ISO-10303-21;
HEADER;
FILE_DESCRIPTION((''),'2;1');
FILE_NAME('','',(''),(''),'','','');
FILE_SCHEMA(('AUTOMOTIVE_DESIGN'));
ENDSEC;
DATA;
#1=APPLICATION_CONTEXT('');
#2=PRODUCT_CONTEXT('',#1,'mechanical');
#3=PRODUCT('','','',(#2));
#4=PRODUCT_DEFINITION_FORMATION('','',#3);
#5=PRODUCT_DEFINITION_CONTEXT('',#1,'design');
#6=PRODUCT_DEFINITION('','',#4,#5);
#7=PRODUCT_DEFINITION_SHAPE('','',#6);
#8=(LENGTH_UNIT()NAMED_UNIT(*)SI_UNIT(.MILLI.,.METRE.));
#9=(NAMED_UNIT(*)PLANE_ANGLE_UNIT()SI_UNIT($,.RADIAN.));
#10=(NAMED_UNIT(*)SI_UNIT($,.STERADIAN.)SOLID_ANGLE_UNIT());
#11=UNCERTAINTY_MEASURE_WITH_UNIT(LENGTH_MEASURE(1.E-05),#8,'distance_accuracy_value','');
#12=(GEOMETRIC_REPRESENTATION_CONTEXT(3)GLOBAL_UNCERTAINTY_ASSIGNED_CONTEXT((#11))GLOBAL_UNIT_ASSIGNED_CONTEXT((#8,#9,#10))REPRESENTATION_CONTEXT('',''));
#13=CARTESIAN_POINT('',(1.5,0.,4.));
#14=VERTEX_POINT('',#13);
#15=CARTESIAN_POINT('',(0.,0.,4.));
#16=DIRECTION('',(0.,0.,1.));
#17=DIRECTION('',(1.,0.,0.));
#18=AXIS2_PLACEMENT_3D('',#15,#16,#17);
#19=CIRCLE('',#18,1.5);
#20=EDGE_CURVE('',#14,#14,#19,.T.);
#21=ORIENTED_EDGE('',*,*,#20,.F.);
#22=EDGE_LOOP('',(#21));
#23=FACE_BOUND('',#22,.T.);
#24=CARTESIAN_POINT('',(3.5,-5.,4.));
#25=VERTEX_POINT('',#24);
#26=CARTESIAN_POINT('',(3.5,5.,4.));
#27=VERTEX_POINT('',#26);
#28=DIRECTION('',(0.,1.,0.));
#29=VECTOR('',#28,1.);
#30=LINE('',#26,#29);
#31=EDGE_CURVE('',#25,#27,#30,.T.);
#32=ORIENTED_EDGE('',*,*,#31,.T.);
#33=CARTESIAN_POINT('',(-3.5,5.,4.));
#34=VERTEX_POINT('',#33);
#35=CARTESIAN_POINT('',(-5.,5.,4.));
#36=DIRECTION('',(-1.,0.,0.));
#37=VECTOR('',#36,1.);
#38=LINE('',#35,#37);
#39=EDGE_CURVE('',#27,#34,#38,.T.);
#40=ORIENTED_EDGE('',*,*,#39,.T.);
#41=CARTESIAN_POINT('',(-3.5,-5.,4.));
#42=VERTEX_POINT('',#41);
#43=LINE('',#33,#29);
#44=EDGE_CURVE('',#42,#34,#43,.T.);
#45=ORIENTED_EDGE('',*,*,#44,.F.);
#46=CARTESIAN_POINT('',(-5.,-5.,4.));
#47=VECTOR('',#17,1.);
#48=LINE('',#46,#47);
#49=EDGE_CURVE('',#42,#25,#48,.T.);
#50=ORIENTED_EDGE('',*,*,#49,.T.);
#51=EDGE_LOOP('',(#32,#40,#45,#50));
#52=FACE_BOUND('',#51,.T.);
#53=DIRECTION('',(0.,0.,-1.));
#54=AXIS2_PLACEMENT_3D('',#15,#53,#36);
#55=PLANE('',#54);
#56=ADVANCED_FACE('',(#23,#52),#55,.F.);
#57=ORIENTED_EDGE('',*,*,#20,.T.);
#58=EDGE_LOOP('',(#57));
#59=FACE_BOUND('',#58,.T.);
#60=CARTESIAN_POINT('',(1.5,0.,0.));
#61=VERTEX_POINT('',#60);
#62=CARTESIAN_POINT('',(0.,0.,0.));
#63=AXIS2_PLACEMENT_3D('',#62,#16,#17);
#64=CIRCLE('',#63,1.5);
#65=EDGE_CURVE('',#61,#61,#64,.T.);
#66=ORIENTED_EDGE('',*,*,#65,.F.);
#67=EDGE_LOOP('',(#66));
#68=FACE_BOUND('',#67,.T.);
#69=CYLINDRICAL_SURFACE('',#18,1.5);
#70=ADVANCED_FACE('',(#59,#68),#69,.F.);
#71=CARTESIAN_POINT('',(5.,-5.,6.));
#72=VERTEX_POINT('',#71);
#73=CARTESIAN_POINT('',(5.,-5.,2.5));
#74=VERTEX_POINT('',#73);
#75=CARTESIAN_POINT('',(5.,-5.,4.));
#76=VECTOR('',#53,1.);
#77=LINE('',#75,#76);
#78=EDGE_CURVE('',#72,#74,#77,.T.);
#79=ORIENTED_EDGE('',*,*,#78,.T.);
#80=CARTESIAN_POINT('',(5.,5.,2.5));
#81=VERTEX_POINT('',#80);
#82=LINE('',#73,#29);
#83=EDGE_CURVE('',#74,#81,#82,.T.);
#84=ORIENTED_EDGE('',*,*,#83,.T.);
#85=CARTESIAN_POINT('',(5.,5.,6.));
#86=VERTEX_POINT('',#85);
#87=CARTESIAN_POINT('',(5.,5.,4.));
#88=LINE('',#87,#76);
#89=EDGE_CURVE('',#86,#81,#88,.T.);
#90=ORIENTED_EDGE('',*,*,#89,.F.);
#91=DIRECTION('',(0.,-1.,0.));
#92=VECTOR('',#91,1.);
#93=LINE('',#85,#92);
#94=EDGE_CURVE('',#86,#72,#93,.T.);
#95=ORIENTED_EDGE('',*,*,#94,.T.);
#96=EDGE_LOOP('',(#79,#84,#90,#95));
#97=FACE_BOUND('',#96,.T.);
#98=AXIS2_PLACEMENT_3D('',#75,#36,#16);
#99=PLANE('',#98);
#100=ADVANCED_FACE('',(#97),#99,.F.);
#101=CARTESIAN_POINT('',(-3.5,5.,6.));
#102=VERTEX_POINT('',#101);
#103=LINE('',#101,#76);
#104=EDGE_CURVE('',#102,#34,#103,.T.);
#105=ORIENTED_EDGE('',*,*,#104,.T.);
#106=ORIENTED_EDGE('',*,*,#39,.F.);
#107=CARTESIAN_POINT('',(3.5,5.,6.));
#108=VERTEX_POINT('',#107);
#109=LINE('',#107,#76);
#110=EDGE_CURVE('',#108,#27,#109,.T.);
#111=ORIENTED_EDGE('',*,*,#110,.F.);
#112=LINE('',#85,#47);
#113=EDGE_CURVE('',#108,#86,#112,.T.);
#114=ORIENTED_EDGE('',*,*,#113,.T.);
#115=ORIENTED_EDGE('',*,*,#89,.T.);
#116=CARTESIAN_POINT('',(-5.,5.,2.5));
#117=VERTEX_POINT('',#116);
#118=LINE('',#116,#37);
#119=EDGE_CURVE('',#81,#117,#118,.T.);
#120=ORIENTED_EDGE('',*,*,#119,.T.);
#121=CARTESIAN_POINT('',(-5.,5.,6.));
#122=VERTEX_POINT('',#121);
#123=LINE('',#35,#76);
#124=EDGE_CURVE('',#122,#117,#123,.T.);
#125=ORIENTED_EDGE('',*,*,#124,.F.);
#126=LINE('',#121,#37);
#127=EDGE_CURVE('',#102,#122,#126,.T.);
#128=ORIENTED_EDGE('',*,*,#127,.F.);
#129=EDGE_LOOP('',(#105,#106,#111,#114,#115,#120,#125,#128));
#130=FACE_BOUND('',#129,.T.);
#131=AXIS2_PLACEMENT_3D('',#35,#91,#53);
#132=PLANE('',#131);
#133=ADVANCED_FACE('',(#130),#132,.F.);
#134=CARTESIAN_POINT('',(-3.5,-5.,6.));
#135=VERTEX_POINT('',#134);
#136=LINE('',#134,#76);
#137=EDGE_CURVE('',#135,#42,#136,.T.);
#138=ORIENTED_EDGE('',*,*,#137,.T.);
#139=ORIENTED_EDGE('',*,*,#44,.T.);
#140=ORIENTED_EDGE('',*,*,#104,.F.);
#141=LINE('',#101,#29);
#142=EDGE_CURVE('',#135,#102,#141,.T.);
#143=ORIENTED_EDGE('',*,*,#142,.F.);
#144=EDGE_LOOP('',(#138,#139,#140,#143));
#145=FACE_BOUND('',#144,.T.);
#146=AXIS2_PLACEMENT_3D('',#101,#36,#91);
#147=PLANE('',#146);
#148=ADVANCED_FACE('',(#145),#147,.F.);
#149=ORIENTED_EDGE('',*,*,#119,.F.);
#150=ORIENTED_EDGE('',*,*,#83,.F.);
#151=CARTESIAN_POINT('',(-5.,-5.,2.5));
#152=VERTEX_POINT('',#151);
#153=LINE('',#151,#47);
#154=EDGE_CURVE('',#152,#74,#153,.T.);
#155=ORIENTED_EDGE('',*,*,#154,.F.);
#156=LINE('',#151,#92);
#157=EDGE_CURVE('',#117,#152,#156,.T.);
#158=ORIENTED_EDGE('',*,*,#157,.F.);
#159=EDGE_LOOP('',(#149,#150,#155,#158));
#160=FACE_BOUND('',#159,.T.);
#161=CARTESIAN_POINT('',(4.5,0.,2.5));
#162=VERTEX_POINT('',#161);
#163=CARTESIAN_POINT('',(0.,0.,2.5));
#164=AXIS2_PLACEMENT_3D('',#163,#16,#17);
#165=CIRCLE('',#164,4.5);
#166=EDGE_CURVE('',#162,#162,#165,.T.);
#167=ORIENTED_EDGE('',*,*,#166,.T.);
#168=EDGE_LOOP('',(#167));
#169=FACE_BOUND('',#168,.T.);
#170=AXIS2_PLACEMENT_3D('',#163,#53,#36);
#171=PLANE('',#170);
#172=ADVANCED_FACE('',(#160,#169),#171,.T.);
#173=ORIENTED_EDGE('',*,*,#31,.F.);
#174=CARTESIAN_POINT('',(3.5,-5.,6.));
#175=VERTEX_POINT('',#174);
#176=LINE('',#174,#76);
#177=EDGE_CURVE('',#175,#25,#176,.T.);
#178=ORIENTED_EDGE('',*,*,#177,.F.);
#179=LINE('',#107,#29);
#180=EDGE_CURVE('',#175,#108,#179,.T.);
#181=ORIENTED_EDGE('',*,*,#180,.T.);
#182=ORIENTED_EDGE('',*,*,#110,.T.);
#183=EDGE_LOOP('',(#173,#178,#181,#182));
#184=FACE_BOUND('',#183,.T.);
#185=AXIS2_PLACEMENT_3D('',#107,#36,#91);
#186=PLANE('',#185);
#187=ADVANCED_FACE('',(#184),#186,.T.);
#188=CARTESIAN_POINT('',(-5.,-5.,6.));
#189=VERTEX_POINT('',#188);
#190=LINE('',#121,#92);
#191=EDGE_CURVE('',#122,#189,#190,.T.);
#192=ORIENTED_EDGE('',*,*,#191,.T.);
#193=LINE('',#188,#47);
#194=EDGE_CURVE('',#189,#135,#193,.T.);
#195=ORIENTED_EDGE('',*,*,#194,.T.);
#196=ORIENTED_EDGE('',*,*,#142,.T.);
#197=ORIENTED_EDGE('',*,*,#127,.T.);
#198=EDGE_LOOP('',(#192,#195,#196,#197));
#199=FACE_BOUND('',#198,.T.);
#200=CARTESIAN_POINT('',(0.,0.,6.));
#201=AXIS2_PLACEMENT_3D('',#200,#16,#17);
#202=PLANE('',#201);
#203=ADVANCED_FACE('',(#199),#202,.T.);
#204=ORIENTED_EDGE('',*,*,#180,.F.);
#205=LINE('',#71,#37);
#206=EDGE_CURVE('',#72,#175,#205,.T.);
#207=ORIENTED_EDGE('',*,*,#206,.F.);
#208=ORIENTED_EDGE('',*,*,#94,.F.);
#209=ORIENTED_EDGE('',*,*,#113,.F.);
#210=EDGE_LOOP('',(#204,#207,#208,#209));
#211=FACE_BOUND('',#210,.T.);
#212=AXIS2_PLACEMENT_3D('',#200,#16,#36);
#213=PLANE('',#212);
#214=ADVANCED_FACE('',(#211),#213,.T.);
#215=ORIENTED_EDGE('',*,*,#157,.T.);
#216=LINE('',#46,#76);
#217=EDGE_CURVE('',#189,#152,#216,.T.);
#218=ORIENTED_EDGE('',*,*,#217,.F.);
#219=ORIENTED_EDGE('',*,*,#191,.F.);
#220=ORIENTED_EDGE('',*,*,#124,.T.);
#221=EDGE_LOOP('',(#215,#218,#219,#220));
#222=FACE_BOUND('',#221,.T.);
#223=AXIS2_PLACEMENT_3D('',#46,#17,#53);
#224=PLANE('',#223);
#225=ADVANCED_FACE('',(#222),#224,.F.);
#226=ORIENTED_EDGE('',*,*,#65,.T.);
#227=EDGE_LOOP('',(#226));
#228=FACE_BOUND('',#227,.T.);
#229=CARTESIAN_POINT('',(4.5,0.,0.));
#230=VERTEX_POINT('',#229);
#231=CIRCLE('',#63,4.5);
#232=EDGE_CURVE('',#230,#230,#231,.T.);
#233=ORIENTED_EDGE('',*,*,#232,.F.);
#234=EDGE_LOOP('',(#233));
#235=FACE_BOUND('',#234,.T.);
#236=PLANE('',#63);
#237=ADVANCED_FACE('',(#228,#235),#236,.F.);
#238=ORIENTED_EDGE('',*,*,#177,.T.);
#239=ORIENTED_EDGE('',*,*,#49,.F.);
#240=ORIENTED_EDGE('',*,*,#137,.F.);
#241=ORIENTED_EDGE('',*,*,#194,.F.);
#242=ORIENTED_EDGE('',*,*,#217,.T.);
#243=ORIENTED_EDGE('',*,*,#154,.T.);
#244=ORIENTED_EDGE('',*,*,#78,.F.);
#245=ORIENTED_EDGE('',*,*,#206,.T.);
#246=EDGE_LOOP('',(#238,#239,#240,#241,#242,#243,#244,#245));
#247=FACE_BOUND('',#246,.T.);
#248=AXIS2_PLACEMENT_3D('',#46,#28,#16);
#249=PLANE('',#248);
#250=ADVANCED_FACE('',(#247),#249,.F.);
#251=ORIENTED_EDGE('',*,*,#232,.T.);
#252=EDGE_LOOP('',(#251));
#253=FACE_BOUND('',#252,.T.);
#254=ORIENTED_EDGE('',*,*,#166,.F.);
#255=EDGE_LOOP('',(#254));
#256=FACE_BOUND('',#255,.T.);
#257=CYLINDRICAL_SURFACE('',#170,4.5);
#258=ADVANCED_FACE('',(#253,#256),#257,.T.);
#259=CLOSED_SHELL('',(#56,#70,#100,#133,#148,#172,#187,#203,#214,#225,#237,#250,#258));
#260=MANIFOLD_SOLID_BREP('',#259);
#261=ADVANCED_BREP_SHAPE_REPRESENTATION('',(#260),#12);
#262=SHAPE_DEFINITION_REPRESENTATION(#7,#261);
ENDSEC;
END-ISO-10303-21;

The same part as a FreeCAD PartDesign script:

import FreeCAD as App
import Part
import Sketcher
from FreeCAD import Vector


def add_polygon(sketch, points):
    """Adds a closed chain of lines whose ends are joined by coincident constraints."""
    first, n = sketch.GeometryCount, len(points)
    for a, b in zip(points, points[1:] + points[:1]):
        sketch.addGeometry(Part.LineSegment(App.Vector(*a, 0), App.Vector(*b, 0)), False)
    for i in range(n):
        sketch.addConstraint(Sketcher.Constraint("Coincident", first + i, 2, first + (i + 1) % n, 1))

doc = App.newDocument("Part")
params = doc.addObject("Spreadsheet::Sheet", "Params")
for row, (alias, value) in enumerate([
    ("sketch1_diameter", "9 mm"),
    ("pad1_length", "2.5 mm"),
    ("sketch2_width", "10 mm"),
    ("pad2_length", "1.5 mm"),
    ("sketch3_height", "10 mm"),
    ("sketch3_width", "1.5 mm"),
    ("pad3_length", "2 mm"),
    ("sketch4_diameter", "3 mm"),
    ("hole_diameter", "3 mm"),
], start=1):
    params.set(f"A{row}", alias)
    params.set(f"B{row}", "=" + value)
    params.setAlias(f"B{row}", alias)

body = doc.addObject("PartDesign::Body", "Body")

sketch1 = doc.addObject("Sketcher::SketchObject", "Sketch")
body.addObject(sketch1)
sketch1.AttachmentSupport = (doc.XY_Plane, [""])
sketch1.MapMode = "FlatFace"
sketch1.addGeometry(Part.Circle(Vector(0, 0, 0), Vector(0, 0, 1), 4.5), False)
sketch1.addConstraint(Sketcher.Constraint("Coincident", 0, 3, -1, 1))
sketch1.addConstraint(Sketcher.Constraint("Diameter", 0, 9.0))
sketch1.setExpression("Constraints[1]", "Params.sketch1_diameter")
pad1 = doc.addObject("PartDesign::Pad", "Pad")
body.addObject(pad1)
pad1.Profile = sketch1
pad1.setExpression("Length", "Params.pad1_length")

sketch2 = doc.addObject("Sketcher::SketchObject", "Sketch001")
body.addObject(sketch2)
sketch2.AttachmentSupport = (doc.XY_Plane, [""])
sketch2.MapMode = "FlatFace"
sketch2.AttachmentOffset = App.Placement(Vector(0, 0, 2.5), App.Rotation())
add_polygon(sketch2, [(-5, 5), (-5, -5), (5, -5), (5, 5)])
sketch2.addConstraint(Sketcher.Constraint("Vertical", 0))
sketch2.addConstraint(Sketcher.Constraint("Horizontal", 1))
sketch2.addConstraint(Sketcher.Constraint("Vertical", 2))
sketch2.addConstraint(Sketcher.Constraint("Horizontal", 3))
sketch2.addConstraint(Sketcher.Constraint("Symmetric", 0, 2, 2, 2, -1, 1))
sketch2.addConstraint(Sketcher.Constraint("Equal", 3, 0))
sketch2.addConstraint(Sketcher.Constraint("DistanceX", 1, 1, 1, 2, 10.0))
sketch2.setExpression("Constraints[10]", "Params.sketch2_width")
pad2 = doc.addObject("PartDesign::Pad", "Pad001")
body.addObject(pad2)
pad2.Profile = sketch2
pad2.setExpression("Length", "Params.pad2_length")

sketch3 = doc.addObject("Sketcher::SketchObject", "Sketch002")
body.addObject(sketch3)
sketch3.AttachmentSupport = (doc.XY_Plane, [""])
sketch3.MapMode = "FlatFace"
sketch3.AttachmentOffset = App.Placement(Vector(0, 0, 4), App.Rotation())
add_polygon(sketch3, [(-5, 5), (-5, -5), (-3.5, -5), (-3.5, 5)])
sketch3.addConstraint(Sketcher.Constraint("Vertical", 0))
sketch3.addConstraint(Sketcher.Constraint("Horizontal", 1))
sketch3.addConstraint(Sketcher.Constraint("Vertical", 2))
sketch3.addConstraint(Sketcher.Constraint("Horizontal", 3))
sketch3.addConstraint(Sketcher.Constraint("DistanceY", 0, 2, 0, 1, 10.0))
sketch3.addConstraint(Sketcher.Constraint("DistanceX", 1, 1, 1, 2, 1.5))
sketch3.addConstraint(Sketcher.Constraint("DistanceX", 0, 2, -1, 1, 5.0))
sketch3.addConstraint(Sketcher.Constraint("DistanceY", 0, 2, -1, 1, 5.0))
sketch3.setExpression("Constraints[8]", "Params.sketch3_height")
sketch3.setExpression("Constraints[9]", "Params.sketch3_width")
pad3 = doc.addObject("PartDesign::Pad", "Pad002")
body.addObject(pad3)
pad3.Profile = sketch3
pad3.setExpression("Length", "Params.pad3_length")
doc.recompute()

mirrored = doc.addObject("PartDesign::Mirrored", "Mirrored")
body.addObject(mirrored)
mirrored.Originals = [pad3]
mirrored.MirrorPlane = (doc.YZ_Plane, [""])
body.Tip = mirrored

sketch4 = doc.addObject("Sketcher::SketchObject", "Sketch003")
body.addObject(sketch4)
sketch4.AttachmentSupport = (doc.XY_Plane, [""])
sketch4.MapMode = "FlatFace"
sketch4.AttachmentOffset = App.Placement(Vector(0, 0, 4), App.Rotation())
sketch4.addGeometry(Part.Circle(Vector(0, 0, 0), Vector(0, 0, 1), 1.5), False)
sketch4.addConstraint(Sketcher.Constraint("Coincident", 0, 3, -1, 1))
sketch4.addConstraint(Sketcher.Constraint("Diameter", 0, 3.0))
sketch4.setExpression("Constraints[1]", "Params.sketch4_diameter")
doc.recompute()
hole = doc.addObject("PartDesign::Hole", "Hole")
body.addObject(hole)
hole.Profile = sketch4
hole.ThreadType = "None"
hole.setExpression("Diameter", "Params.hole_diameter")
hole.DepthType = "ThroughAll"

doc.recompute()
